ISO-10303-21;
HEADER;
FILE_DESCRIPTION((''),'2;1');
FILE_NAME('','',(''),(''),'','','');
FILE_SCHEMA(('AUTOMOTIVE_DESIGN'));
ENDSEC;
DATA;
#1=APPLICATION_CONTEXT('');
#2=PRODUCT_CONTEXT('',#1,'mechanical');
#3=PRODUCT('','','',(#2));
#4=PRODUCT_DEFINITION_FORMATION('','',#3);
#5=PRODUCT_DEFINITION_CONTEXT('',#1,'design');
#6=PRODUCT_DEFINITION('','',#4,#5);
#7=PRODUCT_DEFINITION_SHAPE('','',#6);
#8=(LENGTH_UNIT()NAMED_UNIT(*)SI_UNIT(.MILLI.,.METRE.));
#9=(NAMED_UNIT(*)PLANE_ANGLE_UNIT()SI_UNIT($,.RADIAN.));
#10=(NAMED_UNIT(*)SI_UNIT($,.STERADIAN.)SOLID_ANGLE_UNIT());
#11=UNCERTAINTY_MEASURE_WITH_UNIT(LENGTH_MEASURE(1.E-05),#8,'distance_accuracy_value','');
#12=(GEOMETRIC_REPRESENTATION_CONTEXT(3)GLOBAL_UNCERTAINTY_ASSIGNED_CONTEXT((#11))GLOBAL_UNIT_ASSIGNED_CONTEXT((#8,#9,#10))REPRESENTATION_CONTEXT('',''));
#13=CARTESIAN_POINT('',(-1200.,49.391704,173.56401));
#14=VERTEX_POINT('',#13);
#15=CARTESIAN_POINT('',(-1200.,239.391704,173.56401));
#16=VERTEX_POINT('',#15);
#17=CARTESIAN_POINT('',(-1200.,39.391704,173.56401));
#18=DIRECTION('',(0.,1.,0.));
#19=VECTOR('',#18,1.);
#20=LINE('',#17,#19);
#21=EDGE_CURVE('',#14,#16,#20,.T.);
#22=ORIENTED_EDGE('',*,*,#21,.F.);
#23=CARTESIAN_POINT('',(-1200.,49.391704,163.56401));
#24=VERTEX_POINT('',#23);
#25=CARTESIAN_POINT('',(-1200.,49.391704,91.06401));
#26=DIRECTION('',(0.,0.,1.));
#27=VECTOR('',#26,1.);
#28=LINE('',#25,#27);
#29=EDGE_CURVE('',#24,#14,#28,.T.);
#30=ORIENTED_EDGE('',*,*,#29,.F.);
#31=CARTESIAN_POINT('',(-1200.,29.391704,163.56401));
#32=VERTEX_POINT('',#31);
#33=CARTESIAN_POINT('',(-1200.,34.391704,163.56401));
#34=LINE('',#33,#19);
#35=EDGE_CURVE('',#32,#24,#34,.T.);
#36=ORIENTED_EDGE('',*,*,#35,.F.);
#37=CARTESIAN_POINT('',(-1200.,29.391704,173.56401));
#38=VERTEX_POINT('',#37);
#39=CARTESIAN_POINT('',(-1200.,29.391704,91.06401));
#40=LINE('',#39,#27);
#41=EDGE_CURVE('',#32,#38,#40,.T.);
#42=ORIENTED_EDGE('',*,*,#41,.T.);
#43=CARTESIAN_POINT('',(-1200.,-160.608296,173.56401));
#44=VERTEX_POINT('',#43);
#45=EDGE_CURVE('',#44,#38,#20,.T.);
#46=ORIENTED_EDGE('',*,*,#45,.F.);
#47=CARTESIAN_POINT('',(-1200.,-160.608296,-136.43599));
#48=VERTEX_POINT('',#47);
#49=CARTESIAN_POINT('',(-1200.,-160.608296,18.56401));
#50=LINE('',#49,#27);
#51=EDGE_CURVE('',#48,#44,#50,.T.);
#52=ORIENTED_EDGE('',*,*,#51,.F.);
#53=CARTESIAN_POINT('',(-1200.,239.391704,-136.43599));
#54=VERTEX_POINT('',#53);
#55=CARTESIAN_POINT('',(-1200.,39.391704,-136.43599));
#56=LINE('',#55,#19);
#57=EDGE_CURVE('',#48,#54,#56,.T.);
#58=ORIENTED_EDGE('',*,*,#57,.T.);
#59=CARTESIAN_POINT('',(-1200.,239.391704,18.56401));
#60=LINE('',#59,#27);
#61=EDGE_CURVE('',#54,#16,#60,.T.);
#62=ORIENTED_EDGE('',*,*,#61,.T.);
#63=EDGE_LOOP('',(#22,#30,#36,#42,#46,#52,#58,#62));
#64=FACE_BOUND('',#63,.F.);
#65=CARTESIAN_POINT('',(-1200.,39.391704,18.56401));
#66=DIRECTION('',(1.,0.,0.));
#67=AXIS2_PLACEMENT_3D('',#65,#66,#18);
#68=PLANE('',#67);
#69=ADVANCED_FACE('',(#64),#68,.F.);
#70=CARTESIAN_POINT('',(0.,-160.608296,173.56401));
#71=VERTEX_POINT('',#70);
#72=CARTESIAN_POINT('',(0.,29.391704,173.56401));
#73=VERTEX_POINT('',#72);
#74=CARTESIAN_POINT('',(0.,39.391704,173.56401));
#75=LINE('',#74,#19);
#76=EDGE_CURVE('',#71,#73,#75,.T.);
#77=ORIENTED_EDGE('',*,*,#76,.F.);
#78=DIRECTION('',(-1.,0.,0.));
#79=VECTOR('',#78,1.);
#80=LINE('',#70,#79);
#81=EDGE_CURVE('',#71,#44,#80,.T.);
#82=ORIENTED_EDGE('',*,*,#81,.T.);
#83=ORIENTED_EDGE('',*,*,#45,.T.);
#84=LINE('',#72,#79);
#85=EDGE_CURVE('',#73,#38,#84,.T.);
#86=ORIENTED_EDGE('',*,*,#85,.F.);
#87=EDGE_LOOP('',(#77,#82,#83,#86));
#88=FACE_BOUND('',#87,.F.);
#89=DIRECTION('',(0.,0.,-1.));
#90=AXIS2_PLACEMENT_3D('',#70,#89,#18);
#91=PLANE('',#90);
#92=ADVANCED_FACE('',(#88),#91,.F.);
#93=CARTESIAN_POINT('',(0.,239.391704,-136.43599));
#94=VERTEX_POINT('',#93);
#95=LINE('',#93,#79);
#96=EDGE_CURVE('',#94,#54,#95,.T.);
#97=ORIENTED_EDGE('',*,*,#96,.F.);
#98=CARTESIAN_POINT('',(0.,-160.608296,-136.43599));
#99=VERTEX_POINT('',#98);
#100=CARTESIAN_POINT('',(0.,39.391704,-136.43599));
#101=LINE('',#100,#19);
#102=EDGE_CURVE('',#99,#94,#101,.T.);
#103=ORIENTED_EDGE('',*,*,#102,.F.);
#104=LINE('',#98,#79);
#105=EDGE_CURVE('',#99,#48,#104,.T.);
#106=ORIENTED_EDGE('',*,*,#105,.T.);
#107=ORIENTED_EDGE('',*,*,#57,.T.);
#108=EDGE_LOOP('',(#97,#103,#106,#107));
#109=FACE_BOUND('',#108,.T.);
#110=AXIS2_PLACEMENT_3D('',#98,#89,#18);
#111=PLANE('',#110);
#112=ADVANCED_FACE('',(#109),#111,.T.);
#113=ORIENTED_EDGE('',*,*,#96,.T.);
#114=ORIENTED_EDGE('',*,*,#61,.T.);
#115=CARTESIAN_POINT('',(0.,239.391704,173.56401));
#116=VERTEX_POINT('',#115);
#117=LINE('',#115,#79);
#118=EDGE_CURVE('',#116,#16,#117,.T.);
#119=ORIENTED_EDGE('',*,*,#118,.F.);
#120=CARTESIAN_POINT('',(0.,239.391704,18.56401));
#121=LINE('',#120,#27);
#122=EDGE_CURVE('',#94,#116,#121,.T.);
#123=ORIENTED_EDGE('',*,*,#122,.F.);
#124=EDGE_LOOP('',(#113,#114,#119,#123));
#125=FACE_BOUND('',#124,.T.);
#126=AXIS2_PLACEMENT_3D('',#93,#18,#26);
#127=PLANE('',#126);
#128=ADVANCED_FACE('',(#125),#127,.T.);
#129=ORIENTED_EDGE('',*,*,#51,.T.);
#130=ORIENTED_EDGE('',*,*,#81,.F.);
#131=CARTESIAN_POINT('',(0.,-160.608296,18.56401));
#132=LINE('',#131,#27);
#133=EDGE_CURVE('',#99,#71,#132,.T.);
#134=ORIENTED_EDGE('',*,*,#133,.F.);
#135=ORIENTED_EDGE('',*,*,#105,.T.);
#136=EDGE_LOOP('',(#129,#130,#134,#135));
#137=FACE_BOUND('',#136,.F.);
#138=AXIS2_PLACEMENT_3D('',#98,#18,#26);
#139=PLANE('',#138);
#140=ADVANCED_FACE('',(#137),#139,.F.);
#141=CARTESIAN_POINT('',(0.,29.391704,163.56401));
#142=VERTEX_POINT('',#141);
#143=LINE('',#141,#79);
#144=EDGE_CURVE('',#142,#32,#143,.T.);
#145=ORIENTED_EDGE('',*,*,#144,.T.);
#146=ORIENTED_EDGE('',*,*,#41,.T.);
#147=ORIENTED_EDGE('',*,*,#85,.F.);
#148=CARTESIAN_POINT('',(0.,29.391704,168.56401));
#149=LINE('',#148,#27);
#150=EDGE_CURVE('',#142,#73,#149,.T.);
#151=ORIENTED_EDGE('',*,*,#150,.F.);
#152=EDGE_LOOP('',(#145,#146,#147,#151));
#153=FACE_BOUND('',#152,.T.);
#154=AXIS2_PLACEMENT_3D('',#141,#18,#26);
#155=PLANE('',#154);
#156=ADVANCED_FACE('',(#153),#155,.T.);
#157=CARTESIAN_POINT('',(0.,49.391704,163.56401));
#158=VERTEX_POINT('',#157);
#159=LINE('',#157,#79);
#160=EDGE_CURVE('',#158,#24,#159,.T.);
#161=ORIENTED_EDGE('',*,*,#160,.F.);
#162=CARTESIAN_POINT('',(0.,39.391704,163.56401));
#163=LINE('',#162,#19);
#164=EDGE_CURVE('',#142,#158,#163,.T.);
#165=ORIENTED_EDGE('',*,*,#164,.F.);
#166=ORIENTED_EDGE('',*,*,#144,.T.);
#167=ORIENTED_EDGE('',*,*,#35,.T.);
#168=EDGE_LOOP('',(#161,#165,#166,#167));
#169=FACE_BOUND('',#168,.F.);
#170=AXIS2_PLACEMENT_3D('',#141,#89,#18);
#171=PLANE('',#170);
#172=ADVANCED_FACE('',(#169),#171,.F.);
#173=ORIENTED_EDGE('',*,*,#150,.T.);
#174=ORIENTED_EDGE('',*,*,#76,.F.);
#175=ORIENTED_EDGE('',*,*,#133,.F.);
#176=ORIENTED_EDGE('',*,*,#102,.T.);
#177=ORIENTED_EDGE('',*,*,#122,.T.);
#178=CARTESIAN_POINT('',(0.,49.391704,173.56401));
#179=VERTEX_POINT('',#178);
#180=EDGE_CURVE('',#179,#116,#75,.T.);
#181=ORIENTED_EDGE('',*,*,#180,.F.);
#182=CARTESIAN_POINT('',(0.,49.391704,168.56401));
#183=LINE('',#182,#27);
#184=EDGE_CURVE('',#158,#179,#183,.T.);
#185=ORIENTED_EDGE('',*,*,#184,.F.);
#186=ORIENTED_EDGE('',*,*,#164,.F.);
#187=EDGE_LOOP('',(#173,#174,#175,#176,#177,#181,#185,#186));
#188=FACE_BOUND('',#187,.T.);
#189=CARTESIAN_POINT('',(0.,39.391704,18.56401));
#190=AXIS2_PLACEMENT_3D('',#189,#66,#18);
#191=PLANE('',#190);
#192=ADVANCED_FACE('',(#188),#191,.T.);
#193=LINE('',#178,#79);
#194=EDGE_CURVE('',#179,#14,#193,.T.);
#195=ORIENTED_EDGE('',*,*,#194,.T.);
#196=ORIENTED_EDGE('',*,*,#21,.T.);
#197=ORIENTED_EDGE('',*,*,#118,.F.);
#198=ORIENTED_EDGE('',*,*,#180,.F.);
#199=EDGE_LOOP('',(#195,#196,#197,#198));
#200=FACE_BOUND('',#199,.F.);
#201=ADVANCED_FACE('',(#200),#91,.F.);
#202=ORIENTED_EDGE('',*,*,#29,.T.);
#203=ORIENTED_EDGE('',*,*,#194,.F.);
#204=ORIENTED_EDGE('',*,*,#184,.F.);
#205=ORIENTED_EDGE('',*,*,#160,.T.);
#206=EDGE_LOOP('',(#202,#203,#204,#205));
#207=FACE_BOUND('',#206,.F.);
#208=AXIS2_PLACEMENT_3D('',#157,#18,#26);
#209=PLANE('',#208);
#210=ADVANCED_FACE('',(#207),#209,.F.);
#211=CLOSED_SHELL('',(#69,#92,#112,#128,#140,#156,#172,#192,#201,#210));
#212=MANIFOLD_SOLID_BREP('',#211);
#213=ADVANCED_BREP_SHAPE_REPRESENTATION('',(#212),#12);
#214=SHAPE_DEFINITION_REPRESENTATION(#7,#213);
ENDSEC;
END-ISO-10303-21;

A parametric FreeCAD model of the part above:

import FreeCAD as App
import Part
import Sketcher

doc = App.newDocument("Part")
params = doc.addObject("Spreadsheet::Sheet", "Params")
for row, (alias, value) in enumerate([
    ("sketch1_width", "400 mm"),
    ("sketch1_height", "310 mm"),
    ("pad1_length", "1200 mm"),
    ("sketch2_width", "20 mm"),
    ("sketch2_height", "10 mm"),
    ("pocket1_length", "1250 mm"),
], start=1):
    params.set(f"A{row}", alias)
    params.set(f"B{row}", "=" + value)
    params.setAlias(f"B{row}", alias)

body = doc.addObject("PartDesign::Body", "Body")

sketch1 = doc.addObject("Sketcher::SketchObject", "Sketch")
body.addObject(sketch1)
sketch1.AttachmentSupport = (doc.YZ_Plane, [""])
sketch1.MapMode = "FlatFace"
sketch1.addGeometry(Part.LineSegment(App.Vector(-161, 174, 0), App.Vector(-161, -136, 0)), False)
sketch1.addGeometry(Part.LineSegment(App.Vector(-161, -136, 0), App.Vector(239, -136, 0)), False)
sketch1.addGeometry(Part.LineSegment(App.Vector(239, -136, 0), App.Vector(239, 174, 0)), False)
sketch1.addGeometry(Part.LineSegment(App.Vector(239, 174, 0), App.Vector(-161, 174, 0)), False)
sketch1.addConstraint(Sketcher.Constraint("Coincident", 0, 2, 1, 1))
sketch1.addConstraint(Sketcher.Constraint("Coincident", 1, 2, 2, 1))
sketch1.addConstraint(Sketcher.Constraint("Coincident", 2, 2, 3, 1))
sketch1.addConstraint(Sketcher.Constraint("Coincident", 3, 2, 0, 1))
sketch1.addConstraint(Sketcher.Constraint("Vertical", 0))
sketch1.addConstraint(Sketcher.Constraint("Horizontal", 1))
sketch1.addConstraint(Sketcher.Constraint("Vertical", 2))
sketch1.addConstraint(Sketcher.Constraint("Horizontal", 3))
sketch1.addConstraint(Sketcher.Constraint("DistanceX", 1, 1, 1, 2, 400.0))
sketch1.addConstraint(Sketcher.Constraint("DistanceY", 0, 2, 0, 1, 310.0))
sketch1.addConstraint(Sketcher.Constraint("DistanceY", 0, 2, -1, 1, 136.43599))
sketch1.addConstraint(Sketcher.Constraint("DistanceX", 0, 2, -1, 1, 160.608296))
sketch1.setExpression("Constraints[8]", "Params.sketch1_width")
sketch1.setExpression("Constraints[9]", "Params.sketch1_height")
pad1 = doc.addObject("PartDesign::Pad", "Pad")
body.addObject(pad1)
pad1.Profile = sketch1
pad1.setExpression("Length", "Params.pad1_length")
pad1.Reversed = True

sketch2 = doc.addObject("Sketcher::SketchObject", "Sketch001")
body.addObject(sketch2)
sketch2.AttachmentSupport = (doc.YZ_Plane, [""])
sketch2.MapMode = "FlatFace"
sketch2.addGeometry(Part.LineSegment(App.Vector(29, 174, 0), App.Vector(29, 164, 0)), False)
sketch2.addGeometry(Part.LineSegment(App.Vector(29, 164, 0), App.Vector(49, 164, 0)), False)
sketch2.addGeometry(Part.LineSegment(App.Vector(49, 164, 0), App.Vector(49, 174, 0)), False)
sketch2.addGeometry(Part.LineSegment(App.Vector(49, 174, 0), App.Vector(29, 174, 0)), False)
sketch2.addConstraint(Sketcher.Constraint("Coincident", 0, 2, 1, 1))
sketch2.addConstraint(Sketcher.Constraint("Coincident", 1, 2, 2, 1))
sketch2.addConstraint(Sketcher.Constraint("Coincident", 2, 2, 3, 1))
sketch2.addConstraint(Sketcher.Constraint("Coincident", 3, 2, 0, 1))
sketch2.addConstraint(Sketcher.Constraint("Vertical", 0))
sketch2.addConstraint(Sketcher.Constraint("Horizontal", 1))
sketch2.addConstraint(Sketcher.Constraint("Vertical", 2))
sketch2.addConstraint(Sketcher.Constraint("Horizontal", 3))
sketch2.addConstraint(Sketcher.Constraint("DistanceX", 1, 1, 1, 2, 20.0))
sketch2.addConstraint(Sketcher.Constraint("DistanceY", 0, 2, 0, 1, 10.0))
sketch2.addConstraint(Sketcher.Constraint("DistanceY", -1, 1, 0, 2, 163.56401))
sketch2.addConstraint(Sketcher.Constraint("DistanceX", -1, 1, 0, 2, 29.391704))
sketch2.setExpression("Constraints[8]", "Params.sketch2_width")
sketch2.setExpression("Constraints[9]", "Params.sketch2_height")
pocket1 = doc.addObject("PartDesign::Pocket", "Pocket")
body.addObject(pocket1)
pocket1.Profile = sketch2
pocket1.setExpression("Length", "Params.pocket1_length")

doc.recompute()
